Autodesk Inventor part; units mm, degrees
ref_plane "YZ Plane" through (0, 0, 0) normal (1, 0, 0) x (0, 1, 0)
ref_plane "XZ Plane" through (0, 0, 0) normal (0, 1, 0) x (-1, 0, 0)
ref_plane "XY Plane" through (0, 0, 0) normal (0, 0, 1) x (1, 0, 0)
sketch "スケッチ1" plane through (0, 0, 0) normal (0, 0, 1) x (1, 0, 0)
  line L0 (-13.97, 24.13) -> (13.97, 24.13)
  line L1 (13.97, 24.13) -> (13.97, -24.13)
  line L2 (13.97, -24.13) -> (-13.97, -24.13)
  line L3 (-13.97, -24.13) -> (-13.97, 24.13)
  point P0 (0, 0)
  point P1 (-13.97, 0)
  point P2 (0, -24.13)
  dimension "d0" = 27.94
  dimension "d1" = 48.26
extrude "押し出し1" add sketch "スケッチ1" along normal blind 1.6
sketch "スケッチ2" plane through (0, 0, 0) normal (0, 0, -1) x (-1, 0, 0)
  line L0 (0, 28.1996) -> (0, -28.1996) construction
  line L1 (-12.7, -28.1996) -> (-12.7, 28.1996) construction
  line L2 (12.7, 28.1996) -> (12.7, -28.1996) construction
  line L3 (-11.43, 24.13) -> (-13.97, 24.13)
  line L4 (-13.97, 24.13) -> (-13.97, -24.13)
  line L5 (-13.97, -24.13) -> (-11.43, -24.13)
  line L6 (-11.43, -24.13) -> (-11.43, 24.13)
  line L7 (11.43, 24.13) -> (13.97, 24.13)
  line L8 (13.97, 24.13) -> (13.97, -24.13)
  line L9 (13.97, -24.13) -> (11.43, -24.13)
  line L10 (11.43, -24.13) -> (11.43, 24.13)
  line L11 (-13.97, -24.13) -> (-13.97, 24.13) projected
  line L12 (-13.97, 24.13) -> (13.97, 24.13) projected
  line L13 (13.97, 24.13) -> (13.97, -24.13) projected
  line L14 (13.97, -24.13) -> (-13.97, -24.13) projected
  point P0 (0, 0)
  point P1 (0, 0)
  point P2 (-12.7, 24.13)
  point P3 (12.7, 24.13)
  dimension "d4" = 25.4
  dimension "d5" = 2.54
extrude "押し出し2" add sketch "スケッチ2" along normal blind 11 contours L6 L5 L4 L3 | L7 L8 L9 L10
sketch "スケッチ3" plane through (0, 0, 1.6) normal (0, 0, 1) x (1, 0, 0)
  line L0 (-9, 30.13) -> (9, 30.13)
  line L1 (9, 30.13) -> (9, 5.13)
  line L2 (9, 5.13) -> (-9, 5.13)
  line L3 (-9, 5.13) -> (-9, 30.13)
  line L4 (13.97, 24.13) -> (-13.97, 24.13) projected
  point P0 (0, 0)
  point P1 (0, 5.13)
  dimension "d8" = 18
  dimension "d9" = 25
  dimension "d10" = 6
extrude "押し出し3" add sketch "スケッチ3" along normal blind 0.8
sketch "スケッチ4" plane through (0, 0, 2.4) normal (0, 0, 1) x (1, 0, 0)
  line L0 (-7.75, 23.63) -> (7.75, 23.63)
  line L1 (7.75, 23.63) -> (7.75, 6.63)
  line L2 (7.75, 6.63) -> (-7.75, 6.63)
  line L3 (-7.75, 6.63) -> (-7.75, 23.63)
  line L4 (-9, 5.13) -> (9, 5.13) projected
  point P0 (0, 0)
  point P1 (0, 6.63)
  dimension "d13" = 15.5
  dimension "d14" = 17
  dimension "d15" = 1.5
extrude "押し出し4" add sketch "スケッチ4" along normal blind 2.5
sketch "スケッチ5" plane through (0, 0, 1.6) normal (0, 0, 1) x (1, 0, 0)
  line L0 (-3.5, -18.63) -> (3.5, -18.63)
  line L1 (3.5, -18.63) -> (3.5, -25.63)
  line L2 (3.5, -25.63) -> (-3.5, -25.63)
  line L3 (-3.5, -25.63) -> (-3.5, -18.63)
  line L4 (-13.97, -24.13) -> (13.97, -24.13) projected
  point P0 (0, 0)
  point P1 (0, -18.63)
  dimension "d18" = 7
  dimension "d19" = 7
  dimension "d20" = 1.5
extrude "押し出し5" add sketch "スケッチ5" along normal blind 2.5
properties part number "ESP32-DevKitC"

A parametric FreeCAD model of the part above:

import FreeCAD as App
import Part
import Sketcher
Q = App.Units.Quantity

doc = App.newDocument("Part")
body = doc.addObject("PartDesign::Body", "Body")

# Sketch on XY plane
sketch1 = doc.addObject("Sketcher::SketchObject", "Sketch")
body.addObject(sketch1)
sketch1.AttachmentSupport = (doc.XY_Plane, [""])
sketch1.MapMode = "FlatFace"
sketch1.addGeometry([
    Part.LineSegment(App.Vector(13.97, 24.13, 0), App.Vector(-13.97, 24.13, 0)),
    Part.LineSegment(App.Vector(-13.97, 24.13, 0), App.Vector(-13.97, -24.13, 0)),
    Part.LineSegment(App.Vector(-13.97, -24.13, 0), App.Vector(13.97, -24.13, 0)),
    Part.LineSegment(App.Vector(13.97, -24.13, 0), App.Vector(13.97, 24.13, 0)),
], False)
sketch1.addConstraint([
    Sketcher.Constraint("Coincident", 0, 2, 1, 1),
    Sketcher.Constraint("Coincident", 1, 2, 2, 1),
    Sketcher.Constraint("Coincident", 2, 2, 3, 1),
    Sketcher.Constraint("Coincident", 3, 2, 0, 1),
    Sketcher.Constraint("Horizontal", 0),
    Sketcher.Constraint("Vertical", 1),
    Sketcher.Constraint("Horizontal", 2),
    Sketcher.Constraint("Vertical", 3),
    Sketcher.Constraint("Symmetric", 0, 2, 2, 2, -1, 1),
    Sketcher.Constraint("DistanceX", 0, 2, 0, 1, Q("27.94 mm")),
    Sketcher.Constraint("DistanceY", 1, 2, 1, 1, Q("48.26 mm")),
])
pad1 = doc.addObject("PartDesign::Pad", "Pad")
body.addObject(pad1)
pad1.Profile = sketch1
pad1.Length = 1.6

# Sketch on XY plane
sketch2 = doc.addObject("Sketcher::SketchObject", "Sketch001")
body.addObject(sketch2)
sketch2.AttachmentSupport = (doc.XY_Plane, [""])
sketch2.MapMode = "FlatFace"
sketch2.addGeometry([
    Part.LineSegment(App.Vector(11.43, -24.13, 0), App.Vector(11.43, 24.13, 0)),  # 0
    Part.LineSegment(App.Vector(11.43, 24.13, 0), App.Vector(13.97, 24.13, 0)),  # 1
    Part.LineSegment(App.Vector(13.97, 24.13, 0), App.Vector(13.97, -24.13, 0)),  # 2
    Part.LineSegment(App.Vector(13.97, -24.13, 0), App.Vector(11.43, -24.13, 0)),  # 3
    Part.LineSegment(App.Vector(-13.97, 24.13, 0), App.Vector(-11.43, 24.13, 0)),  # 4
    Part.LineSegment(App.Vector(-11.43, 24.13, 0), App.Vector(-11.43, -24.13, 0)),  # 5
    Part.LineSegment(App.Vector(-11.43, -24.13, 0), App.Vector(-13.97, -24.13, 0)),  # 6
    Part.LineSegment(App.Vector(-13.97, -24.13, 0), App.Vector(-13.97, 24.13, 0)),  # 7
], False)
sketch2.addConstraint([
    Sketcher.Constraint("Coincident", 0, 2, 1, 1),
    Sketcher.Constraint("Coincident", 1, 2, 2, 1),
    Sketcher.Constraint("Coincident", 2, 2, 3, 1),
    Sketcher.Constraint("Coincident", 3, 2, 0, 1),
    Sketcher.Constraint("Coincident", 4, 2, 5, 1),
    Sketcher.Constraint("Coincident", 5, 2, 6, 1),
    Sketcher.Constraint("Coincident", 6, 2, 7, 1),
    Sketcher.Constraint("Coincident", 7, 2, 4, 1),
    Sketcher.Constraint("Vertical", 0),
    Sketcher.Constraint("Horizontal", 1),
    Sketcher.Constraint("Vertical", 2),
    Sketcher.Constraint("Horizontal", 3),
    Sketcher.Constraint("Horizontal", 4),
    Sketcher.Constraint("Vertical", 5),
    Sketcher.Constraint("Horizontal", 6),
    Sketcher.Constraint("Vertical", 7),
    Sketcher.Constraint("Symmetric", 3, 2, 4, 2, -1, 1),
    Sketcher.Constraint("Symmetric", 1, 2, 6, 2, -1, 1),
    Sketcher.Constraint("Horizontal", 1, 2, 4, 2),
    Sketcher.Constraint("DistanceX", 1, 1, 1, 2, Q("2.54 mm")),
    Sketcher.Constraint("DistanceX", 4, 2, 1, 2, Q("25.4 mm")),
    Sketcher.Constraint("DistanceY", 0, 1, 0, 2, Q("48.26 mm")),
])
pad2 = doc.addObject("PartDesign::Pad", "Pad001")
body.addObject(pad2)
pad2.Profile = sketch2
pad2.Length = 11
pad2.Reversed = True

# Sketch on XY plane
sketch3 = doc.addObject("Sketcher::SketchObject", "Sketch002")
body.addObject(sketch3)
sketch3.AttachmentSupport = (doc.XY_Plane, [""])
sketch3.MapMode = "FlatFace"
sketch3.AttachmentOffset = App.Placement(App.Vector(0, 0, 1.6), App.Rotation())
sketch3.addGeometry([
    Part.LineSegment(App.Vector(9, 30.13, 0), App.Vector(-9, 30.13, 0)),
    Part.LineSegment(App.Vector(-9, 30.13, 0), App.Vector(-9, 5.13, 0)),
    Part.LineSegment(App.Vector(-9, 5.13, 0), App.Vector(9, 5.13, 0)),
    Part.LineSegment(App.Vector(9, 5.13, 0), App.Vector(9, 30.13, 0)),
], False)
sketch3.addConstraint([
    Sketcher.Constraint("Coincident", 0, 2, 1, 1),
    Sketcher.Constraint("Coincident", 1, 2, 2, 1),
    Sketcher.Constraint("Coincident", 2, 2, 3, 1),
    Sketcher.Constraint("Coincident", 3, 2, 0, 1),
    Sketcher.Constraint("Horizontal", 0),
    Sketcher.Constraint("Vertical", 1),
    Sketcher.Constraint("Horizontal", 2),
    Sketcher.Constraint("Vertical", 3),
    Sketcher.Constraint("DistanceX", 0, 2, 0, 1, Q("18 mm")),
    Sketcher.Constraint("DistanceY", 1, 2, 1, 1, Q("25 mm")),
    Sketcher.Constraint("DistanceX", 0, 2, -1, 1, Q("9 mm")),
    Sketcher.Constraint("DistanceY", -1, 1, 0, 2, Q("30.13 mm")),
])
pad3 = doc.addObject("PartDesign::Pad", "Pad002")
body.addObject(pad3)
pad3.Profile = sketch3
pad3.Length = 0.8

# Sketch on XY plane
sketch4 = doc.addObject("Sketcher::SketchObject", "Sketch003")
body.addObject(sketch4)
sketch4.AttachmentSupport = (doc.XY_Plane, [""])
sketch4.MapMode = "FlatFace"
sketch4.AttachmentOffset = App.Placement(App.Vector(0, 0, 2.4), App.Rotation())
sketch4.addGeometry([
    Part.LineSegment(App.Vector(7.75, 23.63, 0), App.Vector(-7.75, 23.63, 0)),
    Part.LineSegment(App.Vector(-7.75, 23.63, 0), App.Vector(-7.75, 6.63, 0)),
    Part.LineSegment(App.Vector(-7.75, 6.63, 0), App.Vector(7.75, 6.63, 0)),
    Part.LineSegment(App.Vector(7.75, 6.63, 0), App.Vector(7.75, 23.63, 0)),
], False)
sketch4.addConstraint([
    Sketcher.Constraint("Coincident", 0, 2, 1, 1),
    Sketcher.Constraint("Coincident", 1, 2, 2, 1),
    Sketcher.Constraint("Coincident", 2, 2, 3, 1),
    Sketcher.Constraint("Coincident", 3, 2, 0, 1),
    Sketcher.Constraint("Horizontal", 0),
    Sketcher.Constraint("Vertical", 1),
    Sketcher.Constraint("Horizontal", 2),
    Sketcher.Constraint("Vertical", 3),
    Sketcher.Constraint("DistanceY", 1, 2, 1, 1, Q("17 mm")),
    Sketcher.Constraint("DistanceX", 0, 2, 0, 1, Q("15.5 mm")),
    Sketcher.Constraint("DistanceX", 0, 2, -1, 1, Q("7.75 mm")),
    Sketcher.Constraint("DistanceY", -1, 1, 0, 2, Q("23.63 mm")),
])
pad4 = doc.addObject("PartDesign::Pad", "Pad003")
body.addObject(pad4)
pad4.Profile = sketch4
pad4.Length = 2.5

# Sketch on XY plane
sketch5 = doc.addObject("Sketcher::SketchObject", "Sketch004")
body.addObject(sketch5)
sketch5.AttachmentSupport = (doc.XY_Plane, [""])
sketch5.MapMode = "FlatFace"
sketch5.AttachmentOffset = App.Placement(App.Vector(0, 0, 1.6), App.Rotation())
sketch5.addGeometry([
    Part.LineSegment(App.Vector(3.5, -18.63, 0), App.Vector(-3.5, -18.63, 0)),
    Part.LineSegment(App.Vector(-3.5, -18.63, 0), App.Vector(-3.5, -25.63, 0)),
    Part.LineSegment(App.Vector(-3.5, -25.63, 0), App.Vector(3.5, -25.63, 0)),
    Part.LineSegment(App.Vector(3.5, -25.63, 0), App.Vector(3.5, -18.63, 0)),
], False)
sketch5.addConstraint([
    Sketcher.Constraint("Coincident", 0, 2, 1, 1),
    Sketcher.Constraint("Coincident", 1, 2, 2, 1),
    Sketcher.Constraint("Coincident", 2, 2, 3, 1),
    Sketcher.Constraint("Coincident", 3, 2, 0, 1),
    Sketcher.Constraint("Horizontal", 0),
    Sketcher.Constraint("Vertical", 1),
    Sketcher.Constraint("Horizontal", 2),
    Sketcher.Constraint("Vertical", 3),
    Sketcher.Constraint("Equal", 2, 1),
    Sketcher.Constraint("DistanceX", 0, 2, 0, 1, Q("7 mm")),
    Sketcher.Constraint("DistanceX", 0, 2, -1, 1, Q("3.5 mm")),
    Sketcher.Constraint("DistanceY", 0, 2, -1, 1, Q("18.63 mm")),
])
pad5 = doc.addObject("PartDesign::Pad", "Pad004")
body.addObject(pad5)
pad5.Profile = sketch5
pad5.Length = 2.5

doc.recompute()
